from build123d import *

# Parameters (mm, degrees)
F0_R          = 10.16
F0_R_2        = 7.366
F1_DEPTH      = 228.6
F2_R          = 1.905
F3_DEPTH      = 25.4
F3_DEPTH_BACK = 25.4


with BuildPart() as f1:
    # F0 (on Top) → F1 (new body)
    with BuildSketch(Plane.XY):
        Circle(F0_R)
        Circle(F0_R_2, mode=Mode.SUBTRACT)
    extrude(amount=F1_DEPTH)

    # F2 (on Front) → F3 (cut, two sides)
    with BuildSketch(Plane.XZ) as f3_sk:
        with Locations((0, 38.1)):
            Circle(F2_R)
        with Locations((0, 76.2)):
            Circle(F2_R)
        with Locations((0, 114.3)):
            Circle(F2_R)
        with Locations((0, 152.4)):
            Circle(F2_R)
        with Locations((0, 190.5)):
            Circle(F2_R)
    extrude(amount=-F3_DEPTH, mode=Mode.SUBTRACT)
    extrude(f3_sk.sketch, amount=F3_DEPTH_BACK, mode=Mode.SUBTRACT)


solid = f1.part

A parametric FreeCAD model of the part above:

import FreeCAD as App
import Part
import Sketcher
Q = App.Units.Quantity

doc = App.newDocument("Part")
body = doc.addObject("PartDesign::Body", "Body")

# Sketch on XY plane
sketch1 = body.newObject("Sketcher::SketchObject", "Sketch")
sketch1.AttachmentSupport = (doc.getObject("XY_Plane"), [""])
sketch1.MapMode = "FlatFace"
sketch1.addGeometry([
    Part.Circle(App.Vector(0, 0, 0), App.Vector(0, 0, 1), 10),
    Part.Circle(App.Vector(0, 0, 0), App.Vector(0, 0, 1), 7),
], False)
sketch1.addConstraint([
    Sketcher.Constraint("Coincident", 0, 3, -1, 1),
    Sketcher.Constraint("Coincident", 1, 3, -1, 1),
    Sketcher.Constraint("Diameter", 0, Q("0.8 in")),
    Sketcher.Constraint("Diameter", 1, Q("0.58 in")),
])
pad1 = body.newObject("PartDesign::Pad", "Pad")
pad1.Profile = sketch1
pad1.Length = Q("9 in")

# Sketch on XZ plane
sketch2 = body.newObject("Sketcher::SketchObject", "Sketch001")
sketch2.AttachmentSupport = (doc.getObject("XZ_Plane"), [""])
sketch2.MapMode = "FlatFace"
sketch2.addGeometry([
    Part.Circle(App.Vector(0, 38.1, 0), App.Vector(0, 0, 1), 1.9),  # 0
    Part.Circle(App.Vector(0, 76.2, 0), App.Vector(0, 0, 1), 1.9),  # 1
    Part.Circle(App.Vector(0, 114.3, 0), App.Vector(0, 0, 1), 1.9),  # 2
    Part.Circle(App.Vector(0, 152.4, 0), App.Vector(0, 0, 1), 1.9),  # 3
    Part.Circle(App.Vector(0, 190.5, 0), App.Vector(0, 0, 1), 1.9),  # 4
], False)
sketch2.addConstraint([
    Sketcher.Constraint("Equal", 0, 1),
    Sketcher.Constraint("Equal", 1, 2),
    Sketcher.Constraint("Equal", 2, 3),
    Sketcher.Constraint("Equal", 3, 4),
    Sketcher.Constraint("PointOnObject", 0, 3, -2),
    Sketcher.Constraint("PointOnObject", 1, 3, -2),
    Sketcher.Constraint("PointOnObject", 2, 3, -2),
    Sketcher.Constraint("PointOnObject", 3, 3, -2),
    Sketcher.Constraint("PointOnObject", 4, 3, -2),
    Sketcher.Constraint("Diameter", 0, Q("0.15 in")),
    Sketcher.Constraint("DistanceY", -1, 1, 1, 3, Q("3 in")),
    Sketcher.Constraint("DistanceY", -1, 1, 3, 3, Q("6 in")),
    Sketcher.Constraint("DistanceY", 0, 3, 2, 3, Q("3 in")),
    Sketcher.Constraint("DistanceY", 2, 3, 4, 3, Q("3 in")),
    Sketcher.Constraint("DistanceY", -1, 1, 0, 3, Q("1.5 in")),
])
pocket1 = body.newObject("PartDesign::Pocket", "Pocket")
pocket1.Profile = sketch2
pocket1.Type = "ThroughAll"
pocket1.Midplane = True

doc.recompute()
